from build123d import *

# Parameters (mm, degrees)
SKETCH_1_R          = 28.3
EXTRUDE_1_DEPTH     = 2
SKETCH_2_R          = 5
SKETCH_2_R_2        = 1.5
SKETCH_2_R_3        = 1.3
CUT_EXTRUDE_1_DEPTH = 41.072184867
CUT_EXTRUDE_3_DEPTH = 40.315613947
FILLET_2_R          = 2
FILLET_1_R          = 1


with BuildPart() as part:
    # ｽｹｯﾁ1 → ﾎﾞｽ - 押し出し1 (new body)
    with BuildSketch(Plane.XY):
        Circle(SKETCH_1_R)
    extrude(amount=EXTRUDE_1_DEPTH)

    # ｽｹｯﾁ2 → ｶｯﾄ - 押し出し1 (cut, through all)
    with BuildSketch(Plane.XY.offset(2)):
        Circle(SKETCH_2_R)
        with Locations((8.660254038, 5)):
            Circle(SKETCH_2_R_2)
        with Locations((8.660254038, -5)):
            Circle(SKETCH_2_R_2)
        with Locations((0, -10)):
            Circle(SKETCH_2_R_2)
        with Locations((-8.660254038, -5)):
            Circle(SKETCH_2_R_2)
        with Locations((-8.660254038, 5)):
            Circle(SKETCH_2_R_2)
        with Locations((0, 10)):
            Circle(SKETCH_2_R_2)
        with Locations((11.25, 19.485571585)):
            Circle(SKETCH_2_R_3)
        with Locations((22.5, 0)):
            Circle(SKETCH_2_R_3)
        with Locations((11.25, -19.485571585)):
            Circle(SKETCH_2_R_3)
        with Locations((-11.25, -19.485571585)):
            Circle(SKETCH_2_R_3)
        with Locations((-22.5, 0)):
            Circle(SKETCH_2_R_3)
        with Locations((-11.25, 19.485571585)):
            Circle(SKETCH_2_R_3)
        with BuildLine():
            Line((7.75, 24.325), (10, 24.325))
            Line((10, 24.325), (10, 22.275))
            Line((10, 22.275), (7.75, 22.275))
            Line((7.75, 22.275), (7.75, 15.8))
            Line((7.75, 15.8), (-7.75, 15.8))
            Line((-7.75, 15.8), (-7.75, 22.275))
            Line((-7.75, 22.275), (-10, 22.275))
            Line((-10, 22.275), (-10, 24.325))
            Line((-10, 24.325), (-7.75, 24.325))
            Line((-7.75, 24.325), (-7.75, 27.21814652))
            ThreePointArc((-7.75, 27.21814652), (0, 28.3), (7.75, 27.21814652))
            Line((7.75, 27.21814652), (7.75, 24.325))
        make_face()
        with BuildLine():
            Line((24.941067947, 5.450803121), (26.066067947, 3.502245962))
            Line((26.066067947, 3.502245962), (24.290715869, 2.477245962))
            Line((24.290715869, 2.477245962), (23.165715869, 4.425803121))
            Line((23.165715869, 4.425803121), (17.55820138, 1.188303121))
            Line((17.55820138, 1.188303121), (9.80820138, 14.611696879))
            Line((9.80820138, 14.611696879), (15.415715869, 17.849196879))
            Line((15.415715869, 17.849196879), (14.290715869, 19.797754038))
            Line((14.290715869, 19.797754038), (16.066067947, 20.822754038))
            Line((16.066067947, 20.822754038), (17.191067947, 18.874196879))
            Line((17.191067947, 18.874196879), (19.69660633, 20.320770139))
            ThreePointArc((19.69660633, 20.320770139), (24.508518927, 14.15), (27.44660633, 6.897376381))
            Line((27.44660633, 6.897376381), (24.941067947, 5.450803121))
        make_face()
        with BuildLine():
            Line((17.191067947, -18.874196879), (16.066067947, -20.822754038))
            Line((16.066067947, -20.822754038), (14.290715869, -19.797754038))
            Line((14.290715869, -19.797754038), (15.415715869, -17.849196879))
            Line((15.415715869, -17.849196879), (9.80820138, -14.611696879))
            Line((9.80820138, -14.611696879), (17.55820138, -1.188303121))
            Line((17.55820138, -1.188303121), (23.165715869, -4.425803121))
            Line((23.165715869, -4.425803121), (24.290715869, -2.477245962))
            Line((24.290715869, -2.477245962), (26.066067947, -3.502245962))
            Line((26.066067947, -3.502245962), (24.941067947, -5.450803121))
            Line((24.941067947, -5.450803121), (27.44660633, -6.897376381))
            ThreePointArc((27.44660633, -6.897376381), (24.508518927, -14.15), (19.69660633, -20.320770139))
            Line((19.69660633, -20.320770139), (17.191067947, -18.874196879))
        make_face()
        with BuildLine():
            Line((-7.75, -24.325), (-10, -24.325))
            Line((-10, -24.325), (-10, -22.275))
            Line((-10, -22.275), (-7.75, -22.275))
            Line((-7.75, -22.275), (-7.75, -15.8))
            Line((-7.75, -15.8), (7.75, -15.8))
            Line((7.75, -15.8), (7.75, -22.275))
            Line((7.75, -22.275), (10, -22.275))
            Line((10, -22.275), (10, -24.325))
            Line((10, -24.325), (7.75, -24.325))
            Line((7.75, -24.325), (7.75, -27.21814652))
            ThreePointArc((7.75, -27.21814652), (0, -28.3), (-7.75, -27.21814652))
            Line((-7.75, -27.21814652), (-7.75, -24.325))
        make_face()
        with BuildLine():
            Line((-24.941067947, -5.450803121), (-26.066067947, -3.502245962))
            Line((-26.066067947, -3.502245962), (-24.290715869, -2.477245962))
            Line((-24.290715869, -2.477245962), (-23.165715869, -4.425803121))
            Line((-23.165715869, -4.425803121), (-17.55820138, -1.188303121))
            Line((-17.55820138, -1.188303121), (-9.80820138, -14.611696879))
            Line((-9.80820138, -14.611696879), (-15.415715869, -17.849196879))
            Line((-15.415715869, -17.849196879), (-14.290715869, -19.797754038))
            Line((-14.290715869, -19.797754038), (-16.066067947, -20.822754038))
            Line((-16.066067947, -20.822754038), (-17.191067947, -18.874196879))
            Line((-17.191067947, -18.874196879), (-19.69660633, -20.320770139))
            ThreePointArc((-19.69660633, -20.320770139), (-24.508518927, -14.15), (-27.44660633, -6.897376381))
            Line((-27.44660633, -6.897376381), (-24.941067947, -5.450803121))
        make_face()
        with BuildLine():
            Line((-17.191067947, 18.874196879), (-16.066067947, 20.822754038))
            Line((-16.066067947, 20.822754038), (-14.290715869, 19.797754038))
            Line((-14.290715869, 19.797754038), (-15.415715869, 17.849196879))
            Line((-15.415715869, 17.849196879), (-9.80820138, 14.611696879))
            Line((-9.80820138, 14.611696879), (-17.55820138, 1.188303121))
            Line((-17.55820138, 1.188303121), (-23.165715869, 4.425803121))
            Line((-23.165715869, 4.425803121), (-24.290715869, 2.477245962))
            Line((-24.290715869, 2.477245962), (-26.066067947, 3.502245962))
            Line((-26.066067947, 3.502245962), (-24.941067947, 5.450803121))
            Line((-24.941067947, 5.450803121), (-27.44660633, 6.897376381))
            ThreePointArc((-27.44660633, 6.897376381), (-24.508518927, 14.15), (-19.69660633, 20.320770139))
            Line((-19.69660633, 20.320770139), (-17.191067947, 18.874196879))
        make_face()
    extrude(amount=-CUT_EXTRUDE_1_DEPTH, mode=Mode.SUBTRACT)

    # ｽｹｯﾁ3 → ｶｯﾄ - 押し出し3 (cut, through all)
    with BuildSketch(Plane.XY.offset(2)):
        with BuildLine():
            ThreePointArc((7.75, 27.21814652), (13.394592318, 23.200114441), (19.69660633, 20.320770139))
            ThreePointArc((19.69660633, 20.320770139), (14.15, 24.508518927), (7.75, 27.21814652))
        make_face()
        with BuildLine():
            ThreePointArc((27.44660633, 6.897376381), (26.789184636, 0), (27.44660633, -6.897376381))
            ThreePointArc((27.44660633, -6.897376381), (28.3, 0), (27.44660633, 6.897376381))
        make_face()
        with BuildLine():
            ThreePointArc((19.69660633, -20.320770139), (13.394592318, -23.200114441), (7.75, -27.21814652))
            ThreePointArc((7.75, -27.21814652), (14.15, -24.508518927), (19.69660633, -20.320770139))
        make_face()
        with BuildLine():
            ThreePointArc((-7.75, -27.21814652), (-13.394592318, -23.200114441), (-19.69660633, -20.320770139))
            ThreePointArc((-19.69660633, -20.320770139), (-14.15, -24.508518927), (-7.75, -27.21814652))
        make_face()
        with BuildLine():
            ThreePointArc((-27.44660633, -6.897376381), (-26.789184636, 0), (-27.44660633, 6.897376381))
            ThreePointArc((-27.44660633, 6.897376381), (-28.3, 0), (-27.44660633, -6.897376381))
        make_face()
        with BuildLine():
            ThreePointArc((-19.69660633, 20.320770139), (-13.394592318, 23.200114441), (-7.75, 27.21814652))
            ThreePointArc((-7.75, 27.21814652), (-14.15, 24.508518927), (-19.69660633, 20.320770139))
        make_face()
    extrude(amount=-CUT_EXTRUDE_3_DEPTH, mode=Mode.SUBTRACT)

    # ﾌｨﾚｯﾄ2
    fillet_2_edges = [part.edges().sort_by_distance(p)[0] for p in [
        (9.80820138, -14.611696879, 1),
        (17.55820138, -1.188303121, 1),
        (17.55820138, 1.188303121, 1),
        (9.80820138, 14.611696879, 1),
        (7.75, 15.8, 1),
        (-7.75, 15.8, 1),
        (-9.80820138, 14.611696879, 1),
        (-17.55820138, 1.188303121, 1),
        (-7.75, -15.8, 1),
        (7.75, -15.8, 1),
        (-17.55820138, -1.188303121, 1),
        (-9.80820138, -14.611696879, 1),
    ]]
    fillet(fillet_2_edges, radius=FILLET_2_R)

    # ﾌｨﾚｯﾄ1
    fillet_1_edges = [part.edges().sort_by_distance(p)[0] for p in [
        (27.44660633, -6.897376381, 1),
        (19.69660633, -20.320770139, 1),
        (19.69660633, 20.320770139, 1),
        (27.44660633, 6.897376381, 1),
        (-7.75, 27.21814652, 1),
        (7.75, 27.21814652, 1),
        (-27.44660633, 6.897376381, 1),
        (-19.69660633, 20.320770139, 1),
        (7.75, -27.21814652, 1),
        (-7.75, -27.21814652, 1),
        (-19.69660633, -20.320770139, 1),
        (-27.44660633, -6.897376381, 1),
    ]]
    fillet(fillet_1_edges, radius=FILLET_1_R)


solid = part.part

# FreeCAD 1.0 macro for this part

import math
import FreeCAD as App
import Part
import Sketcher
Q = App.Units.Quantity


def edges_at(feature, points):
    """Names of the edges that pass closest to the given points."""
    edges = feature.Shape.Edges
    near = lambda p: min(range(len(edges)), key=lambda i: edges[i].distToShape(Part.Vertex(*p))[0])
    return sorted({f"Edge{near(p) + 1}" for p in points})

doc = App.newDocument("Part")
body = doc.addObject("PartDesign::Body", "Body")

# Sketch on XY plane
sketch1 = doc.addObject("Sketcher::SketchObject", "Sketch")
body.addObject(sketch1)
sketch1.AttachmentSupport = (doc.XY_Plane, [""])
sketch1.MapMode = "FlatFace"
sketch1.addGeometry(Part.Circle(App.Vector(0, 0, 0), App.Vector(0, 0, 1), 28), False)
sketch1.addConstraint([
    Sketcher.Constraint("Coincident", 0, 3, -1, 1),
    Sketcher.Constraint("Diameter", 0, 56.6),
])
pad1 = doc.addObject("PartDesign::Pad", "Pad")
body.addObject(pad1)
pad1.Profile = sketch1
pad1.Length = 2

# Sketch on XY plane
sketch2 = doc.addObject("Sketcher::SketchObject", "Sketch001")
body.addObject(sketch2)
sketch2.AttachmentSupport = (doc.XY_Plane, [""])
sketch2.MapMode = "FlatFace"
sketch2.AttachmentOffset = App.Placement(App.Vector(0, 0, 2), App.Rotation())
sketch2.addGeometry([
    Part.Circle(App.Vector(0, 0, 0), App.Vector(0, 0, 1), 5),  # 0
    Part.Circle(App.Vector(8.7, 5, 0), App.Vector(0, 0, 1), 1.5),  # 1
    Part.Circle(App.Vector(8.7, -5, 0), App.Vector(0, 0, 1), 1.5),  # 2
    Part.Circle(App.Vector(0, -10, 0), App.Vector(0, 0, 1), 1.5),  # 3
    Part.Circle(App.Vector(-8.7, -5, 0), App.Vector(0, 0, 1), 1.5),  # 4
    Part.Circle(App.Vector(-8.7, 5, 0), App.Vector(0, 0, 1), 1.5),  # 5
    Part.Circle(App.Vector(0, 10, 0), App.Vector(0, 0, 1), 1.5),  # 6
    Part.Circle(App.Vector(11.2, 19.5, 0), App.Vector(0, 0, 1), 1.3),  # 7
    Part.Circle(App.Vector(22.5, 0, 0), App.Vector(0, 0, 1), 1.3),  # 8
    Part.Circle(App.Vector(11.2, -19.5, 0), App.Vector(0, 0, 1), 1.3),  # 9
    Part.Circle(App.Vector(-11.2, -19.5, 0), App.Vector(0, 0, 1), 1.3),  # 10
    Part.Circle(App.Vector(-22.5, 0, 0), App.Vector(0, 0, 1), 1.3),  # 11
    Part.Circle(App.Vector(-11.2, 19.5, 0), App.Vector(0, 0, 1), 1.3),  # 12
    Part.LineSegment(App.Vector(10, 24.3, 0), App.Vector(7.8, 24.3, 0)),  # 13
    Part.LineSegment(App.Vector(7.8, 24.3, 0), App.Vector(7.8, 27.2, 0)),  # 14
    Part.ArcOfCircle(Part.Circle(App.Vector(0, 0, 0), App.Vector(0, 0, 1), 28.3), math.radians(74), math.radians(106)),  # 15
    Part.LineSegment(App.Vector(-7.8, 27.2, 0), App.Vector(-7.8, 24.3, 0)),  # 16
    Part.LineSegment(App.Vector(-7.8, 24.3, 0), App.Vector(-10, 24.3, 0)),  # 17
    Part.LineSegment(App.Vector(-10, 24.3, 0), App.Vector(-10, 22.3, 0)),  # 18
    Part.LineSegment(App.Vector(-10, 22.3, 0), App.Vector(-7.8, 22.3, 0)),  # 19
    Part.LineSegment(App.Vector(-7.8, 22.3, 0), App.Vector(-7.8, 15.8, 0)),  # 20
    Part.LineSegment(App.Vector(-7.8, 15.8, 0), App.Vector(7.8, 15.8, 0)),  # 21
    Part.LineSegment(App.Vector(7.8, 15.8, 0), App.Vector(7.8, 22.3, 0)),  # 22
    Part.LineSegment(App.Vector(7.8, 22.3, 0), App.Vector(10, 22.3, 0)),  # 23
    Part.LineSegment(App.Vector(10, 22.3, 0), App.Vector(10, 24.3, 0)),  # 24
    Part.LineSegment(App.Vector(26.1, 3.5, 0), App.Vector(24.9, 5.5, 0)),  # 25
    Part.LineSegment(App.Vector(24.9, 5.5, 0), App.Vector(27.4, 6.9, 0)),  # 26
    Part.ArcOfCircle(Part.Circle(App.Vector(0, 0, 0), App.Vector(0, 0, 1), 28.3), math.radians(14), math.radians(46)),  # 27
    Part.LineSegment(App.Vector(19.7, 20.3, 0), App.Vector(17.2, 18.9, 0)),  # 28
    Part.LineSegment(App.Vector(17.2, 18.9, 0), App.Vector(16.1, 20.8, 0)),  # 29
    Part.LineSegment(App.Vector(16.1, 20.8, 0), App.Vector(14.3, 19.8, 0)),  # 30
    Part.LineSegment(App.Vector(14.3, 19.8, 0), App.Vector(15.4, 17.8, 0)),  # 31
    Part.LineSegment(App.Vector(15.4, 17.8, 0), App.Vector(9.8, 14.6, 0)),  # 32
    Part.LineSegment(App.Vector(9.8, 14.6, 0), App.Vector(17.6, 1.2, 0)),  # 33
    Part.LineSegment(App.Vector(17.6, 1.2, 0), App.Vector(23.2, 4.4, 0)),  # 34
    Part.LineSegment(App.Vector(23.2, 4.4, 0), App.Vector(24.3, 2.5, 0)),  # 35
    Part.LineSegment(App.Vector(24.3, 2.5, 0), App.Vector(26.1, 3.5, 0)),  # 36
    Part.LineSegment(App.Vector(16.1, -20.8, 0), App.Vector(17.2, -18.9, 0)),  # 37
    Part.LineSegment(App.Vector(17.2, -18.9, 0), App.Vector(19.7, -20.3, 0)),  # 38
    Part.ArcOfCircle(Part.Circle(App.Vector(0, 0, 0), App.Vector(0, 0, 1), 28.3), math.radians(-46), math.radians(-14)),  # 39
    Part.LineSegment(App.Vector(27.4, -6.9, 0), App.Vector(24.9, -5.5, 0)),  # 40
    Part.LineSegment(App.Vector(24.9, -5.5, 0), App.Vector(26.1, -3.5, 0)),  # 41
    Part.LineSegment(App.Vector(26.1, -3.5, 0), App.Vector(24.3, -2.5, 0)),  # 42
    Part.LineSegment(App.Vector(24.3, -2.5, 0), App.Vector(23.2, -4.4, 0)),  # 43
    Part.LineSegment(App.Vector(23.2, -4.4, 0), App.Vector(17.6, -1.2, 0)),  # 44
    Part.LineSegment(App.Vector(17.6, -1.2, 0), App.Vector(9.8, -14.6, 0)),  # 45
    Part.LineSegment(App.Vector(9.8, -14.6, 0), App.Vector(15.4, -17.8, 0)),  # 46
    Part.LineSegment(App.Vector(15.4, -17.8, 0), App.Vector(14.3, -19.8, 0)),  # 47
    Part.LineSegment(App.Vector(14.3, -19.8, 0), App.Vector(16.1, -20.8, 0)),  # 48
    Part.LineSegment(App.Vector(-10, -24.3, 0), App.Vector(-7.8, -24.3, 0)),  # 49
    Part.LineSegment(App.Vector(-7.8, -24.3, 0), App.Vector(-7.8, -27.2, 0)),  # 50
    Part.ArcOfCircle(Part.Circle(App.Vector(0, 0, 0), App.Vector(0, 0, 1), 28.3), math.radians(-106), math.radians(-74)),  # 51
    Part.LineSegment(App.Vector(7.8, -27.2, 0), App.Vector(7.8, -24.3, 0)),  # 52
    Part.LineSegment(App.Vector(7.8, -24.3, 0), App.Vector(10, -24.3, 0)),  # 53
    Part.LineSegment(App.Vector(10, -24.3, 0), App.Vector(10, -22.3, 0)),  # 54
    Part.LineSegment(App.Vector(10, -22.3, 0), App.Vector(7.8, -22.3, 0)),  # 55
    Part.LineSegment(App.Vector(7.8, -22.3, 0), App.Vector(7.8, -15.8, 0)),  # 56
    Part.LineSegment(App.Vector(7.8, -15.8, 0), App.Vector(-7.8, -15.8, 0)),  # 57
    Part.LineSegment(App.Vector(-7.8, -15.8, 0), App.Vector(-7.8, -22.3, 0)),  # 58
    Part.LineSegment(App.Vector(-7.8, -22.3, 0), App.Vector(-10, -22.3, 0)),  # 59
    Part.LineSegment(App.Vector(-10, -22.3, 0), App.Vector(-10, -24.3, 0)),  # 60
    Part.LineSegment(App.Vector(-26.1, -3.5, 0), App.Vector(-24.9, -5.5, 0)),  # 61
    Part.LineSegment(App.Vector(-24.9, -5.5, 0), App.Vector(-27.4, -6.9, 0)),  # 62
    Part.ArcOfCircle(Part.Circle(App.Vector(0, 0, 0), App.Vector(0, 0, 1), 28.3), math.radians(-166), math.radians(-134)),  # 63
    Part.LineSegment(App.Vector(-19.7, -20.3, 0), App.Vector(-17.2, -18.9, 0)),  # 64
    Part.LineSegment(App.Vector(-17.2, -18.9, 0), App.Vector(-16.1, -20.8, 0)),  # 65
    Part.LineSegment(App.Vector(-16.1, -20.8, 0), App.Vector(-14.3, -19.8, 0)),  # 66
    Part.LineSegment(App.Vector(-14.3, -19.8, 0), App.Vector(-15.4, -17.8, 0)),  # 67
    Part.LineSegment(App.Vector(-15.4, -17.8, 0), App.Vector(-9.8, -14.6, 0)),  # 68
    Part.LineSegment(App.Vector(-9.8, -14.6, 0), App.Vector(-17.6, -1.2, 0)),  # 69
    Part.LineSegment(App.Vector(-17.6, -1.2, 0), App.Vector(-23.2, -4.4, 0)),  # 70
    Part.LineSegment(App.Vector(-23.2, -4.4, 0), App.Vector(-24.3, -2.5, 0)),  # 71
    Part.LineSegment(App.Vector(-24.3, -2.5, 0), App.Vector(-26.1, -3.5, 0)),  # 72
    Part.LineSegment(App.Vector(-16.1, 20.8, 0), App.Vector(-17.2, 18.9, 0)),  # 73
    Part.LineSegment(App.Vector(-17.2, 18.9, 0), App.Vector(-19.7, 20.3, 0)),  # 74
    Part.ArcOfCircle(Part.Circle(App.Vector(0, 0, 0), App.Vector(0, 0, 1), 28.3), math.radians(134), math.radians(166)),  # 75
    Part.LineSegment(App.Vector(-27.4, 6.9, 0), App.Vector(-24.9, 5.5, 0)),  # 76
    Part.LineSegment(App.Vector(-24.9, 5.5, 0), App.Vector(-26.1, 3.5, 0)),  # 77
    Part.LineSegment(App.Vector(-26.1, 3.5, 0), App.Vector(-24.3, 2.5, 0)),  # 78
    Part.LineSegment(App.Vector(-24.3, 2.5, 0), App.Vector(-23.2, 4.4, 0)),  # 79
    Part.LineSegment(App.Vector(-23.2, 4.4, 0), App.Vector(-17.6, 1.2, 0)),  # 80
    Part.LineSegment(App.Vector(-17.6, 1.2, 0), App.Vector(-9.8, 14.6, 0)),  # 81
    Part.LineSegment(App.Vector(-9.8, 14.6, 0), App.Vector(-15.4, 17.8, 0)),  # 82
    Part.LineSegment(App.Vector(-15.4, 17.8, 0), App.Vector(-14.3, 19.8, 0)),  # 83
    Part.LineSegment(App.Vector(-14.3, 19.8, 0), App.Vector(-16.1, 20.8, 0)),  # 84
], False)
sketch2.addConstraint([
    Sketcher.Constraint("Coincident", 13, 2, 14, 1),
    Sketcher.Constraint("Coincident", 14, 2, 15, 1),
    Sketcher.Constraint("Coincident", 15, 2, 16, 1),
    Sketcher.Constraint("Coincident", 16, 2, 17, 1),
    Sketcher.Constraint("Coincident", 17, 2, 18, 1),
    Sketcher.Constraint("Coincident", 18, 2, 19, 1),
    Sketcher.Constraint("Coincident", 19, 2, 20, 1),
    Sketcher.Constraint("Coincident", 20, 2, 21, 1),
    Sketcher.Constraint("Coincident", 21, 2, 22, 1),
    Sketcher.Constraint("Coincident", 22, 2, 23, 1),
    Sketcher.Constraint("Coincident", 23, 2, 24, 1),
    Sketcher.Constraint("Coincident", 24, 2, 13, 1),
    Sketcher.Constraint("Coincident", 25, 2, 26, 1),
    Sketcher.Constraint("Coincident", 26, 2, 27, 1),
    Sketcher.Constraint("Coincident", 27, 2, 28, 1),
    Sketcher.Constraint("Coincident", 28, 2, 29, 1),
    Sketcher.Constraint("Coincident", 29, 2, 30, 1),
    Sketcher.Constraint("Coincident", 30, 2, 31, 1),
    Sketcher.Constraint("Coincident", 31, 2, 32, 1),
    Sketcher.Constraint("Coincident", 32, 2, 33, 1),
    Sketcher.Constraint("Coincident", 33, 2, 34, 1),
    Sketcher.Constraint("Coincident", 34, 2, 35, 1),
    Sketcher.Constraint("Coincident", 35, 2, 36, 1),
    Sketcher.Constraint("Coincident", 36, 2, 25, 1),
    Sketcher.Constraint("Coincident", 37, 2, 38, 1),
    Sketcher.Constraint("Coincident", 38, 2, 39, 1),
    Sketcher.Constraint("Coincident", 39, 2, 40, 1),
    Sketcher.Constraint("Coincident", 40, 2, 41, 1),
    Sketcher.Constraint("Coincident", 41, 2, 42, 1),
    Sketcher.Constraint("Coincident", 42, 2, 43, 1),
    Sketcher.Constraint("Coincident", 43, 2, 44, 1),
    Sketcher.Constraint("Coincident", 44, 2, 45, 1),
    Sketcher.Constraint("Coincident", 45, 2, 46, 1),
    Sketcher.Constraint("Coincident", 46, 2, 47, 1),
    Sketcher.Constraint("Coincident", 47, 2, 48, 1),
    Sketcher.Constraint("Coincident", 48, 2, 37, 1),
    Sketcher.Constraint("Coincident", 49, 2, 50, 1),
    Sketcher.Constraint("Coincident", 50, 2, 51, 1),
    Sketcher.Constraint("Coincident", 51, 2, 52, 1),
    Sketcher.Constraint("Coincident", 52, 2, 53, 1),
    Sketcher.Constraint("Coincident", 53, 2, 54, 1),
    Sketcher.Constraint("Coincident", 54, 2, 55, 1),
    Sketcher.Constraint("Coincident", 55, 2, 56, 1),
    Sketcher.Constraint("Coincident", 56, 2, 57, 1),
    Sketcher.Constraint("Coincident", 57, 2, 58, 1),
    Sketcher.Constraint("Coincident", 58, 2, 59, 1),
    Sketcher.Constraint("Coincident", 59, 2, 60, 1),
    Sketcher.Constraint("Coincident", 60, 2, 49, 1),
    Sketcher.Constraint("Coincident", 61, 2, 62, 1),
    Sketcher.Constraint("Coincident", 62, 2, 63, 1),
    Sketcher.Constraint("Coincident", 63, 2, 64, 1),
    Sketcher.Constraint("Coincident", 64, 2, 65, 1),
    Sketcher.Constraint("Coincident", 65, 2, 66, 1),
    Sketcher.Constraint("Coincident", 66, 2, 67, 1),
    Sketcher.Constraint("Coincident", 67, 2, 68, 1),
    Sketcher.Constraint("Coincident", 68, 2, 69, 1),
    Sketcher.Constraint("Coincident", 69, 2, 70, 1),
    Sketcher.Constraint("Coincident", 70, 2, 71, 1),
    Sketcher.Constraint("Coincident", 71, 2, 72, 1),
    Sketcher.Constraint("Coincident", 72, 2, 61, 1),
    Sketcher.Constraint("Coincident", 73, 2, 74, 1),
    Sketcher.Constraint("Coincident", 74, 2, 75, 1),
    Sketcher.Constraint("Coincident", 75, 2, 76, 1),
    Sketcher.Constraint("Coincident", 76, 2, 77, 1),
    Sketcher.Constraint("Coincident", 77, 2, 78, 1),
    Sketcher.Constraint("Coincident", 78, 2, 79, 1),
    Sketcher.Constraint("Coincident", 79, 2, 80, 1),
    Sketcher.Constraint("Coincident", 80, 2, 81, 1),
    Sketcher.Constraint("Coincident", 81, 2, 82, 1),
    Sketcher.Constraint("Coincident", 82, 2, 83, 1),
    Sketcher.Constraint("Coincident", 83, 2, 84, 1),
    Sketcher.Constraint("Coincident", 84, 2, 73, 1),
    Sketcher.Constraint("Horizontal", 13),
    Sketcher.Constraint("Vertical", 14),
    Sketcher.Constraint("Vertical", 16),
    Sketcher.Constraint("Horizontal", 17),
    Sketcher.Constraint("Vertical", 18),
    Sketcher.Constraint("Horizontal", 19),
    Sketcher.Constraint("Vertical", 20),
    Sketcher.Constraint("Horizontal", 21),
    Sketcher.Constraint("Vertical", 22),
    Sketcher.Constraint("Horizontal", 23),
    Sketcher.Constraint("Vertical", 24),
    Sketcher.Constraint("Horizontal", 49),
    Sketcher.Constraint("Vertical", 50),
    Sketcher.Constraint("Vertical", 52),
    Sketcher.Constraint("Horizontal", 53),
    Sketcher.Constraint("Vertical", 54),
    Sketcher.Constraint("Horizontal", 55),
    Sketcher.Constraint("Vertical", 56),
    Sketcher.Constraint("Horizontal", 57),
    Sketcher.Constraint("Vertical", 58),
    Sketcher.Constraint("Horizontal", 59),
    Sketcher.Constraint("Vertical", 60),
    Sketcher.Constraint("Coincident", 0, 3, -1, 1),
    Sketcher.Constraint("Coincident", 15, 3, -1, 1),
    Sketcher.Constraint("Coincident", 27, 3, -1, 1),
    Sketcher.Constraint("Coincident", 39, 3, -1, 1),
    Sketcher.Constraint("Coincident", 51, 3, -1, 1),
    Sketcher.Constraint("Coincident", 63, 3, -1, 1),
    Sketcher.Constraint("Coincident", 75, 3, -1, 1),
    Sketcher.Constraint("Equal", 1, 2),
    Sketcher.Constraint("Equal", 2, 3),
    Sketcher.Constraint("Equal", 3, 4),
    Sketcher.Constraint("Equal", 4, 5),
    Sketcher.Constraint("Equal", 5, 6),
    Sketcher.Constraint("Equal", 7, 8),
    Sketcher.Constraint("Equal", 8, 9),
    Sketcher.Constraint("Equal", 9, 10),
    Sketcher.Constraint("Equal", 10, 11),
    Sketcher.Constraint("Equal", 11, 12),
    Sketcher.Constraint("Equal", 15, 27),
    Sketcher.Constraint("Equal", 27, 39),
    Sketcher.Constraint("Equal", 39, 51),
    Sketcher.Constraint("Equal", 51, 63),
    Sketcher.Constraint("Equal", 63, 75),
    Sketcher.Constraint("Symmetric", 1, 3, 4, 3, -1, 1),
    Sketcher.Constraint("Symmetric", 2, 3, 5, 3, -1, 1),
    Sketcher.Constraint("Symmetric", 3, 3, 6, 3, -1, 1),
    Sketcher.Constraint("Symmetric", 7, 3, 10, 3, -1, 1),
    Sketcher.Constraint("Symmetric", 8, 3, 11, 3, -1, 1),
    Sketcher.Constraint("Symmetric", 9, 3, 12, 3, -1, 1),
    Sketcher.Constraint("Symmetric", 13, 2, 49, 2, -1, 1),
    Sketcher.Constraint("Symmetric", 16, 2, 52, 2, -1, 1),
    Sketcher.Constraint("Symmetric", 18, 2, 54, 2, -1, 1),
    Sketcher.Constraint("Symmetric", 20, 2, 56, 2, -1, 1),
    Sketcher.Constraint("Symmetric", 22, 2, 58, 2, -1, 1),
    Sketcher.Constraint("Symmetric", 25, 2, 61, 2, -1, 1),
    Sketcher.Constraint("Symmetric", 28, 2, 64, 2, -1, 1),
    Sketcher.Constraint("Symmetric", 29, 2, 65, 2, -1, 1),
    Sketcher.Constraint("Symmetric", 30, 2, 66, 2, -1, 1),
    Sketcher.Constraint("Symmetric", 31, 2, 67, 2, -1, 1),
    Sketcher.Constraint("Symmetric", 32, 2, 68, 2, -1, 1),
    Sketcher.Constraint("Symmetric", 33, 2, 69, 2, -1, 1),
    Sketcher.Constraint("Symmetric", 34, 2, 70, 2, -1, 1),
    Sketcher.Constraint("Symmetric", 35, 2, 71, 2, -1, 1),
    Sketcher.Constraint("Symmetric", 36, 2, 72, 2, -1, 1),
    Sketcher.Constraint("Symmetric", 37, 2, 73, 2, -1, 1),
    Sketcher.Constraint("Symmetric", 40, 2, 76, 2, -1, 1),
    Sketcher.Constraint("Symmetric", 41, 2, 77, 2, -1, 1),
    Sketcher.Constraint("Symmetric", 42, 2, 78, 2, -1, 1),
    Sketcher.Constraint("Symmetric", 43, 2, 79, 2, -1, 1),
    Sketcher.Constraint("Symmetric", 44, 2, 80, 2, -1, 1),
    Sketcher.Constraint("Symmetric", 45, 2, 81, 2, -1, 1),
    Sketcher.Constraint("Symmetric", 46, 2, 82, 2, -1, 1),
    Sketcher.Constraint("Symmetric", 47, 2, 83, 2, -1, 1),
    Sketcher.Constraint("Symmetric", 48, 2, 84, 2, -1, 1),
    Sketcher.Constraint("Symmetric", 2, 3, 4, 3, -2),
    Sketcher.Constraint("Symmetric", 9, 3, 10, 3, -2),
    Sketcher.Constraint("Symmetric", 13, 2, 16, 2, -2),
    Sketcher.Constraint("Symmetric", 19, 2, 22, 2, -2),
    Sketcher.Constraint("Symmetric", 40, 2, 61, 2, -2),
    Sketcher.Constraint("Symmetric", 37, 2, 64, 2, -2),
    Sketcher.Constraint("Symmetric", 48, 2, 65, 2, -2),
    Sketcher.Constraint("Symmetric", 47, 2, 66, 2, -2),
    Sketcher.Constraint("Symmetric", 46, 2, 67, 2, -2),
    Sketcher.Constraint("Symmetric", 45, 2, 68, 2, -2),
    Sketcher.Constraint("Symmetric", 44, 2, 69, 2, -2),
    Sketcher.Constraint("Symmetric", 43, 2, 70, 2, -2),
    Sketcher.Constraint("Symmetric", 42, 2, 71, 2, -2),
    Sketcher.Constraint("Symmetric", 41, 2, 72, 2, -2),
    Sketcher.Constraint("PointOnObject", 3, 3, -2),
    Sketcher.Constraint("PointOnObject", 8, 3, -1),
    Sketcher.Constraint("Perpendicular", 25, 26),
    Sketcher.Constraint("Parallel", 26, 28),
    Sketcher.Constraint("Perpendicular", 28, 29),
    Sketcher.Constraint("Perpendicular", 29, 30),
    Sketcher.Constraint("Perpendicular", 30, 31),
    Sketcher.Constraint("Perpendicular", 31, 32),
    Sketcher.Constraint("Perpendicular", 32, 33),
    Sketcher.Constraint("Perpendicular", 33, 34),
    Sketcher.Constraint("Perpendicular", 34, 35),
    Sketcher.Constraint("Perpendicular", 35, 36),
    Sketcher.Constraint("Perpendicular", 37, 38),
    Sketcher.Constraint("Parallel", 38, 40),
    Sketcher.Constraint("Perpendicular", 61, 62),
    Sketcher.Constraint("Parallel", 62, 64),
    Sketcher.Constraint("Perpendicular", 73, 74),
    Sketcher.Constraint("Parallel", 74, 76),
    Sketcher.Constraint("Vertical", 16, 2, 19, 2),
    Sketcher.Constraint("Vertical", 24, 2, 53, 2),
    Sketcher.Constraint("Vertical", 18, 2, 59, 2),
    Sketcher.Constraint("Equal", 26, 28),
    Sketcher.Constraint("Equal", 25, 29),
    Sketcher.Constraint("Equal", 29, 31),
    Sketcher.Constraint("Equal", 32, 34),
    Sketcher.Constraint("Equal", 31, 35),
    Sketcher.Constraint("Equal", 30, 36),
    Sketcher.Constraint("Diameter", 0, 10.0),
    Sketcher.Constraint("Diameter", 1, 3.0),
    Sketcher.Constraint("Diameter", 7, 2.6),
    Sketcher.Constraint("Radius", 15, 28.3),
    Sketcher.Constraint("Angle", 25, Q("120 deg")),
    Sketcher.Constraint("DistanceX", 21, 1, 21, 2, 15.5),
    Sketcher.Constraint("DistanceY", -1, 1, 1, 3, 5.0),
    Sketcher.Constraint("DistanceY", 3, 3, -1, 1, 10.0),
    Sketcher.Constraint("DistanceX", 17, 2, -1, 1, 10.0),
    Sketcher.Constraint("Distance", 33, 15.5),
    Sketcher.Constraint("DistanceY", 18, 2, 18, 1, 2.05),
    Sketcher.Constraint("DistanceX", -1, 1, 8, 3, 22.5),
    Sketcher.Constraint("DistanceY", -1, 1, 20, 2, 15.8),
    Sketcher.Constraint("Distance", 25, 2.25),
    Sketcher.Constraint("Distance", 30, 2.05),
    Sketcher.Constraint("DistanceY", 20, 2, 20, 1, 6.475),
    Sketcher.Constraint("DistanceX", -1, 1, 7, 3, 11.25),
    Sketcher.Constraint("Distance", 32, 6.475),
    Sketcher.Constraint("DistanceX", -1, 1, 32, 2, 9.808201),
    Sketcher.Constraint("DistanceY", -1, 1, 7, 3, 19.485572),
    Sketcher.Constraint("DistanceX", -1, 1, 1, 3, 8.660254),
])
pocket1 = doc.addObject("PartDesign::Pocket", "Pocket")
body.addObject(pocket1)
pocket1.Profile = sketch2
pocket1.Type = "ThroughAll"

# Sketch on XY plane
sketch3 = doc.addObject("Sketcher::SketchObject", "Sketch002")
body.addObject(sketch3)
sketch3.AttachmentSupport = (doc.XY_Plane, [""])
sketch3.MapMode = "FlatFace"
sketch3.AttachmentOffset = App.Placement(App.Vector(0, 0, 2), App.Rotation())
sketch3.addGeometry([
    Part.ArcOfCircle(Part.Circle(App.Vector(32, 55, 0), App.Vector(0, 0, 1), 37), math.radians(-131), math.radians(-109)),  # 0
    Part.ArcOfCircle(Part.Circle(App.Vector(0, 0, 0), App.Vector(0, 0, 1), 28), math.radians(46), math.radians(74)),  # 1
    Part.ArcOfCircle(Part.Circle(App.Vector(63, 0, 0), App.Vector(0, 0, 1), 37), math.radians(169), math.radians(191)),  # 2
    Part.ArcOfCircle(Part.Circle(App.Vector(0, 0, 0), App.Vector(0, 0, 1), 28), math.radians(-14), math.radians(14)),  # 3
    Part.ArcOfCircle(Part.Circle(App.Vector(32, -55, 0), App.Vector(0, 0, 1), 37), math.radians(109), math.radians(131)),  # 4
    Part.ArcOfCircle(Part.Circle(App.Vector(0, 0, 0), App.Vector(0, 0, 1), 28), math.radians(-74), math.radians(-46)),  # 5
    Part.ArcOfCircle(Part.Circle(App.Vector(-32, -55, 0), App.Vector(0, 0, 1), 37), math.radians(49), math.radians(71)),  # 6
    Part.ArcOfCircle(Part.Circle(App.Vector(0, 0, 0), App.Vector(0, 0, 1), 28), math.radians(-134), math.radians(-106)),  # 7
    Part.ArcOfCircle(Part.Circle(App.Vector(-63, 0, 0), App.Vector(0, 0, 1), 37), math.radians(-11), math.radians(11)),  # 8
    Part.ArcOfCircle(Part.Circle(App.Vector(0, 0, 0), App.Vector(0, 0, 1), 28), math.radians(166), math.radians(194)),  # 9
    Part.ArcOfCircle(Part.Circle(App.Vector(-32, 55, 0), App.Vector(0, 0, 1), 37), math.radians(-71), math.radians(-49)),  # 10
    Part.ArcOfCircle(Part.Circle(App.Vector(0, 0, 0), App.Vector(0, 0, 1), 28), math.radians(106), math.radians(134)),  # 11
], False)
sketch3.addConstraint([
    Sketcher.Constraint("Coincident", 0, 1, 1, 2),
    Sketcher.Constraint("Coincident", 1, 1, 0, 2),
    Sketcher.Constraint("Coincident", 2, 1, 3, 2),
    Sketcher.Constraint("Coincident", 3, 1, 2, 2),
    Sketcher.Constraint("Coincident", 4, 1, 5, 2),
    Sketcher.Constraint("Coincident", 5, 1, 4, 2),
    Sketcher.Constraint("Coincident", 6, 1, 7, 2),
    Sketcher.Constraint("Coincident", 7, 1, 6, 2),
    Sketcher.Constraint("Coincident", 8, 1, 9, 2),
    Sketcher.Constraint("Coincident", 9, 1, 8, 2),
    Sketcher.Constraint("Coincident", 10, 1, 11, 2),
    Sketcher.Constraint("Coincident", 11, 1, 10, 2),
    Sketcher.Constraint("Coincident", 1, 3, -1, 1),
    Sketcher.Constraint("Coincident", 3, 3, -1, 1),
    Sketcher.Constraint("Coincident", 5, 3, -1, 1),
    Sketcher.Constraint("Coincident", 7, 3, -1, 1),
    Sketcher.Constraint("Coincident", 9, 3, -1, 1),
    Sketcher.Constraint("Coincident", 11, 3, -1, 1),
    Sketcher.Constraint("Equal", 0, 2),
    Sketcher.Constraint("Equal", 1, 3),
    Sketcher.Constraint("Equal", 2, 4),
    Sketcher.Constraint("Equal", 3, 5),
    Sketcher.Constraint("Equal", 4, 6),
    Sketcher.Constraint("Equal", 5, 7),
    Sketcher.Constraint("Equal", 6, 8),
    Sketcher.Constraint("Equal", 7, 9),
    Sketcher.Constraint("Equal", 8, 10),
    Sketcher.Constraint("Equal", 9, 11),
    Sketcher.Constraint("Symmetric", 0, 3, 6, 3, -1, 1),
    Sketcher.Constraint("Symmetric", 2, 3, 8, 3, -1, 1),
    Sketcher.Constraint("Symmetric", 4, 3, 10, 3, -1, 1),
    Sketcher.Constraint("Symmetric", 4, 3, 6, 3, -2),
    Sketcher.Constraint("PointOnObject", 2, 3, -1),
    Sketcher.Constraint("Radius", 1, 28.3),
    Sketcher.Constraint("DistanceX", -1, 1, 2, 3, 63.3),
    Sketcher.Constraint("DistanceX", 6, 3, 4, 3, 63.3),
    Sketcher.Constraint("DistanceX", 6, 1, 5, 1, 15.5),
    Sketcher.Constraint("Radius", 0, 36.510815),
])
pocket2 = doc.addObject("PartDesign::Pocket", "Pocket001")
body.addObject(pocket2)
pocket2.Profile = sketch3
pocket2.Type = "ThroughAll"
doc.recompute()

fillet = doc.addObject("PartDesign::Fillet", "Fillet")
body.addObject(fillet)
fillet.Base = (pocket2, edges_at(pocket2, [
    (9.808, -14.612, 1),
    (17.558, -1.188, 1),
    (17.558, 1.188, 1),
    (9.808, 14.612, 1),
    (7.75, 15.8, 1),
    (-7.75, 15.8, 1),
    (-9.808, 14.612, 1),
    (-17.558, 1.188, 1),
    (-7.75, -15.8, 1),
    (7.75, -15.8, 1),
    (-17.558, -1.188, 1),
    (-9.808, -14.612, 1),
]))
fillet.Radius = 2
doc.recompute()

fillet2 = doc.addObject("PartDesign::Fillet", "Fillet001")
body.addObject(fillet2)
fillet2.Base = (fillet, edges_at(fillet, [
    (27.447, -6.897, 1),
    (19.697, -20.321, 1),
    (19.697, 20.321, 1),
    (27.447, 6.897, 1),
    (-7.75, 27.218, 1),
    (7.75, 27.218, 1),
    (-27.447, 6.897, 1),
    (-19.697, 20.321, 1),
    (7.75, -27.218, 1),
    (-7.75, -27.218, 1),
    (-19.697, -20.321, 1),
    (-27.447, -6.897, 1),
]))
fillet2.Radius = 1

doc.recompute()
